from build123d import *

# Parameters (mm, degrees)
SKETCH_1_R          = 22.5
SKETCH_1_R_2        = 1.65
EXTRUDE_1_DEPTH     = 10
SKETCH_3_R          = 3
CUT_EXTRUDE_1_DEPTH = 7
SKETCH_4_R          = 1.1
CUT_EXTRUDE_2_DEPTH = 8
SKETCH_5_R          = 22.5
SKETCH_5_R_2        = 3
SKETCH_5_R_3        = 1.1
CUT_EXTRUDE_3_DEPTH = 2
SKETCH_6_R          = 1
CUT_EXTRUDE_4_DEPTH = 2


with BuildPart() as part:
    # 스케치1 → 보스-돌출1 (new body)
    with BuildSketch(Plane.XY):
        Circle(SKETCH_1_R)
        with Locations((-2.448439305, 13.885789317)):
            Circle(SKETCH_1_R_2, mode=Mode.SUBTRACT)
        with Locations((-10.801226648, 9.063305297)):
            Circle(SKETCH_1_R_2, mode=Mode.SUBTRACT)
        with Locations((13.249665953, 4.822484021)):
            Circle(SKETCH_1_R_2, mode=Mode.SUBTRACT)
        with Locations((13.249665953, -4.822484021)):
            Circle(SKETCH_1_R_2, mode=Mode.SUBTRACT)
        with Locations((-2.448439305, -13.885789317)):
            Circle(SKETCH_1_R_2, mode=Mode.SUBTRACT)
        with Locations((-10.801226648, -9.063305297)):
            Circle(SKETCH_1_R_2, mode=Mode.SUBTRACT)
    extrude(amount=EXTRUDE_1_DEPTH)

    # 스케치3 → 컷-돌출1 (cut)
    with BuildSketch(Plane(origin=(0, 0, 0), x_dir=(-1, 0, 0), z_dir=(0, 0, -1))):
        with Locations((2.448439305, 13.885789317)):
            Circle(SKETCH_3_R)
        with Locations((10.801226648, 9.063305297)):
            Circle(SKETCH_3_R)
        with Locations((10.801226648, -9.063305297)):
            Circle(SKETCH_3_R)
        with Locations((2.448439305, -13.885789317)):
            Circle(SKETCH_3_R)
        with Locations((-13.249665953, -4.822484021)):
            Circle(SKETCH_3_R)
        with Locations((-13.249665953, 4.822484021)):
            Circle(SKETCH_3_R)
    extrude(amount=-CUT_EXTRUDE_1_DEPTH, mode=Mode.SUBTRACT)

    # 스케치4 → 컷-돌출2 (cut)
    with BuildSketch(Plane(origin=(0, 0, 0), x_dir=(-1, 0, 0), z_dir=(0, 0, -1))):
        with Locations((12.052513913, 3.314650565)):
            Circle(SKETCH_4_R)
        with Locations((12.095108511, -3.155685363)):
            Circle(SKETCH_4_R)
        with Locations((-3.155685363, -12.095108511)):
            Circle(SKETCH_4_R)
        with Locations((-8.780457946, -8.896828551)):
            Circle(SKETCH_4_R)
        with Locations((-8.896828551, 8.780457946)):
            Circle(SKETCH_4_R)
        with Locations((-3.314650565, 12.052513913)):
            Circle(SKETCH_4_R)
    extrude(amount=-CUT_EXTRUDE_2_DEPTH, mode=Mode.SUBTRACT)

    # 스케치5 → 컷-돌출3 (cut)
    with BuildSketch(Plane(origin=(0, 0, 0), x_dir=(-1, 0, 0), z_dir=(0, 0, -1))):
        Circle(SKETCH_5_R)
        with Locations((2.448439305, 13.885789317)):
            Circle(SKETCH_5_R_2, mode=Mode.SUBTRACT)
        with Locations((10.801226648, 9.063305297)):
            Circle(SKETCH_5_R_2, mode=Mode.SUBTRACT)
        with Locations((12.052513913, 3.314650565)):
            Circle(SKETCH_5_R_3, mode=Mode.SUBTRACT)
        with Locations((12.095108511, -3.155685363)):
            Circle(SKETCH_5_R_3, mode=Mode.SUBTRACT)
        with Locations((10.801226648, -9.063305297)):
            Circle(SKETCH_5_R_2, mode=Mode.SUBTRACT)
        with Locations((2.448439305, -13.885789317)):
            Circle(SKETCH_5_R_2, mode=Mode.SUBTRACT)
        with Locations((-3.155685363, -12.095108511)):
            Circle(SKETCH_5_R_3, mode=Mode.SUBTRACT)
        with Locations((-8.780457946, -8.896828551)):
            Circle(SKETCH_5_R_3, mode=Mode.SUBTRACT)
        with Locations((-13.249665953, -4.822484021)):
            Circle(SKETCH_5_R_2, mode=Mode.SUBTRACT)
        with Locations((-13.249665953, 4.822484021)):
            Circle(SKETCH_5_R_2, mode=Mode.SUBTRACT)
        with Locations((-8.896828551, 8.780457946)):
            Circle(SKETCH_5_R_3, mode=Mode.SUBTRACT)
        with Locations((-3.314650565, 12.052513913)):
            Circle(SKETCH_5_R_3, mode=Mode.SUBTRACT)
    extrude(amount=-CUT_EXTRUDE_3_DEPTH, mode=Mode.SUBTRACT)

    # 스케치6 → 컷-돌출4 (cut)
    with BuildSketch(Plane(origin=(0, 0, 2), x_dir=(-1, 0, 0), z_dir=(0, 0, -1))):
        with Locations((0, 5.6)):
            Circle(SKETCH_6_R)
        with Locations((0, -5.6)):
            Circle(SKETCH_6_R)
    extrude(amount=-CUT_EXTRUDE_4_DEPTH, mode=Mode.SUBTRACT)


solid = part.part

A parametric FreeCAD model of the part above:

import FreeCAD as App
import Part
import Sketcher
from FreeCAD import Vector
Q = App.Units.Quantity

doc = App.newDocument("Part")
body = doc.addObject("PartDesign::Body", "Body")

sketch1 = body.newObject("Sketcher::SketchObject", "Sketch")
sketch1.AttachmentSupport = (doc.getObject("XY_Plane"), [""])
sketch1.MapMode = "FlatFace"
sketch1.addGeometry(Part.Circle(Vector(0, 0, 0), Vector(0, 0, 1), 22.5), False)
sketch1.addGeometry(Part.Circle(Vector(-10.8, -9.1, 0), Vector(0, 0, 1), 1.6), False)
sketch1.addGeometry(Part.Circle(Vector(-2.4, -13.9, 0), Vector(0, 0, 1), 1.6), False)
sketch1.addGeometry(Part.Circle(Vector(13.2, -4.8, 0), Vector(0, 0, 1), 1.6), False)
sketch1.addGeometry(Part.Circle(Vector(-10.8, 9.1, 0), Vector(0, 0, 1), 1.6), False)
sketch1.addGeometry(Part.Circle(Vector(-2.4, 13.9, 0), Vector(0, 0, 1), 1.6), False)
sketch1.addGeometry(Part.Circle(Vector(13.2, 4.8, 0), Vector(0, 0, 1), 1.6), False)
sketch1.addConstraint(Sketcher.Constraint("Coincident", 0, 3, -1, 1))
sketch1.addConstraint(Sketcher.Constraint("Equal", 1, 2))
sketch1.addConstraint(Sketcher.Constraint("Equal", 2, 3))
sketch1.addConstraint(Sketcher.Constraint("Equal", 3, 4))
sketch1.addConstraint(Sketcher.Constraint("Equal", 4, 5))
sketch1.addConstraint(Sketcher.Constraint("Equal", 5, 6))
sketch1.addConstraint(Sketcher.Constraint("Symmetric", 1, 3, 4, 3, -1))
sketch1.addConstraint(Sketcher.Constraint("Symmetric", 2, 3, 5, 3, -1))
sketch1.addConstraint(Sketcher.Constraint("Symmetric", 3, 3, 6, 3, -1))
sketch1.addConstraint(Sketcher.Constraint("Diameter", 0, Q("45 mm")))
sketch1.addConstraint(Sketcher.Constraint("Diameter", 1, Q("3.3 mm")))
sketch1.addConstraint(Sketcher.Constraint("DistanceX", 2, 3, -1, 1, Q("2.448439 mm")))
sketch1.addConstraint(Sketcher.Constraint("DistanceY", 2, 3, -1, 1, Q("13.885789 mm")))
sketch1.addConstraint(Sketcher.Constraint("DistanceY", 1, 3, 3, 3, Q("4.240821 mm")))
sketch1.addConstraint(Sketcher.Constraint("DistanceY", 1, 3, 4, 3, Q("18.126611 mm")))
sketch1.addConstraint(Sketcher.Constraint("DistanceX", 1, 3, -1, 1, Q("10.801227 mm")))
sketch1.addConstraint(Sketcher.Constraint("DistanceX", -1, 1, 3, 3, Q("13.249666 mm")))
pad1 = body.newObject("PartDesign::Pad", "Pad")
pad1.Profile = sketch1
pad1.Length = 10

sketch2 = body.newObject("Sketcher::SketchObject", "Sketch001")
sketch2.AttachmentSupport = (doc.getObject("XY_Plane"), [""])
sketch2.MapMode = "FlatFace"
sketch2.addGeometry(Part.Circle(Vector(-2.4, 13.9, 0), Vector(0, 0, 1), 3), False)
sketch2.addGeometry(Part.Circle(Vector(-10.8, 9.1, 0), Vector(0, 0, 1), 3), False)
sketch2.addGeometry(Part.Circle(Vector(-10.8, -9.1, 0), Vector(0, 0, 1), 3), False)
sketch2.addGeometry(Part.Circle(Vector(-2.4, -13.9, 0), Vector(0, 0, 1), 3), False)
sketch2.addGeometry(Part.Circle(Vector(13.2, -4.8, 0), Vector(0, 0, 1), 3), False)
sketch2.addGeometry(Part.Circle(Vector(13.2, 4.8, 0), Vector(0, 0, 1), 3), False)
sketch2.addConstraint(Sketcher.Constraint("Equal", 0, 1))
sketch2.addConstraint(Sketcher.Constraint("Equal", 1, 2))
sketch2.addConstraint(Sketcher.Constraint("Equal", 2, 3))
sketch2.addConstraint(Sketcher.Constraint("Equal", 3, 4))
sketch2.addConstraint(Sketcher.Constraint("Equal", 4, 5))
sketch2.addConstraint(Sketcher.Constraint("Symmetric", 1, 3, 2, 3, -1))
sketch2.addConstraint(Sketcher.Constraint("Symmetric", 0, 3, 3, 3, -1))
sketch2.addConstraint(Sketcher.Constraint("Symmetric", 4, 3, 5, 3, -1))
sketch2.addConstraint(Sketcher.Constraint("Diameter", 0, Q("6 mm")))
sketch2.addConstraint(Sketcher.Constraint("DistanceX", 0, 3, -1, 1, Q("2.448439 mm")))
sketch2.addConstraint(Sketcher.Constraint("DistanceY", -1, 1, 0, 3, Q("13.885789 mm")))
sketch2.addConstraint(Sketcher.Constraint("DistanceY", 2, 3, 1, 3, Q("18.126611 mm")))
sketch2.addConstraint(Sketcher.Constraint("DistanceY", 2, 3, 4, 3, Q("4.240821 mm")))
sketch2.addConstraint(Sketcher.Constraint("DistanceX", 1, 3, -1, 1, Q("10.801227 mm")))
sketch2.addConstraint(Sketcher.Constraint("DistanceX", -1, 1, 4, 3, Q("13.249666 mm")))
pocket1 = body.newObject("PartDesign::Pocket", "Pocket")
pocket1.Profile = sketch2
pocket1.Length = 7
pocket1.Reversed = True

sketch3 = body.newObject("Sketcher::SketchObject", "Sketch002")
sketch3.AttachmentSupport = (doc.getObject("XY_Plane"), [""])
sketch3.MapMode = "FlatFace"
sketch3.addGeometry(Part.Circle(Vector(-12.1, 3.3, 0), Vector(0, 0, 1), 1.1), False)
sketch3.addGeometry(Part.Circle(Vector(-12.1, -3.2, 0), Vector(0, 0, 1), 1.1), False)
sketch3.addGeometry(Part.Circle(Vector(3.2, -12.1, 0), Vector(0, 0, 1), 1.1), False)
sketch3.addGeometry(Part.Circle(Vector(8.8, -8.9, 0), Vector(0, 0, 1), 1.1), False)
sketch3.addGeometry(Part.Circle(Vector(8.9, 8.8, 0), Vector(0, 0, 1), 1.1), False)
sketch3.addGeometry(Part.Circle(Vector(3.3, 12.1, 0), Vector(0, 0, 1), 1.1), False)
sketch3.addConstraint(Sketcher.Constraint("Equal", 0, 1))
sketch3.addConstraint(Sketcher.Constraint("Equal", 1, 2))
sketch3.addConstraint(Sketcher.Constraint("Equal", 2, 3))
sketch3.addConstraint(Sketcher.Constraint("Equal", 3, 4))
sketch3.addConstraint(Sketcher.Constraint("Equal", 4, 5))
sketch3.addConstraint(Sketcher.Constraint("Diameter", 0, Q("2.2 mm")))
sketch3.addConstraint(Sketcher.Constraint("DistanceX", 0, 3, 2, 3, Q("15.208199 mm")))
sketch3.addConstraint(Sketcher.Constraint("DistanceY", 1, 3, 5, 3, Q("15.208199 mm")))
sketch3.addConstraint(Sketcher.Constraint("DistanceY", -1, 1, 0, 3, Q("3.314651 mm")))
sketch3.addConstraint(Sketcher.Constraint("DistanceX", 1, 3, -1, 1, Q("12.095109 mm")))
sketch3.addConstraint(Sketcher.Constraint("DistanceY", 2, 3, -1, 1, Q("12.095109 mm")))
sketch3.addConstraint(Sketcher.Constraint("DistanceY", 3, 3, -1, 1, Q("8.896829 mm")))
sketch3.addConstraint(Sketcher.Constraint("DistanceX", -1, 1, 4, 3, Q("8.896829 mm")))
sketch3.addConstraint(Sketcher.Constraint("DistanceX", -1, 1, 5, 3, Q("3.314651 mm")))
sketch3.addConstraint(Sketcher.Constraint("DistanceX", 0, 3, 3, 3, Q("20.832972 mm")))
sketch3.addConstraint(Sketcher.Constraint("DistanceX", 3, 3, 4, 3, Q("0.116371 mm")))
sketch3.addConstraint(Sketcher.Constraint("DistanceY", 1, 3, -1, 1, Q("3.155685 mm")))
sketch3.addConstraint(Sketcher.Constraint("DistanceY", -1, 1, 4, 3, Q("8.780458 mm")))
pocket2 = body.newObject("PartDesign::Pocket", "Pocket001")
pocket2.Profile = sketch3
pocket2.Length = 8
pocket2.Reversed = True

sketch4 = body.newObject("Sketcher::SketchObject", "Sketch003")
sketch4.AttachmentSupport = (doc.getObject("XY_Plane"), [""])
sketch4.MapMode = "FlatFace"
sketch4.addGeometry(Part.Circle(Vector(0, 0, 0), Vector(0, 0, 1), 22.5), False)
sketch4.addGeometry(Part.Circle(Vector(8.8, -8.9, 0), Vector(0, 0, 1), 1.1), False)
sketch4.addGeometry(Part.Circle(Vector(3.2, -12.1, 0), Vector(0, 0, 1), 1.1), False)
sketch4.addGeometry(Part.Circle(Vector(13.2, -4.8, 0), Vector(0, 0, 1), 3), False)
sketch4.addGeometry(Part.Circle(Vector(-2.4, -13.9, 0), Vector(0, 0, 1), 3), False)
sketch4.addGeometry(Part.Circle(Vector(-10.8, -9.1, 0), Vector(0, 0, 1), 3), False)
sketch4.addGeometry(Part.Circle(Vector(-12.1, -3.2, 0), Vector(0, 0, 1), 1.1), False)
sketch4.addGeometry(Part.Circle(Vector(13.2, 4.8, 0), Vector(0, 0, 1), 3), False)
sketch4.addGeometry(Part.Circle(Vector(8.9, 8.8, 0), Vector(0, 0, 1), 1.1), False)
sketch4.addGeometry(Part.Circle(Vector(3.3, 12.1, 0), Vector(0, 0, 1), 1.1), False)
sketch4.addGeometry(Part.Circle(Vector(-12.1, 3.3, 0), Vector(0, 0, 1), 1.1), False)
sketch4.addGeometry(Part.Circle(Vector(-2.4, 13.9, 0), Vector(0, 0, 1), 3), False)
sketch4.addGeometry(Part.Circle(Vector(-10.8, 9.1, 0), Vector(0, 0, 1), 3), False)
sketch4.addConstraint(Sketcher.Constraint("Coincident", 0, 3, -1, 1))
sketch4.addConstraint(Sketcher.Constraint("Equal", 1, 2))
sketch4.addConstraint(Sketcher.Constraint("Equal", 3, 4))
sketch4.addConstraint(Sketcher.Constraint("Equal", 4, 5))
sketch4.addConstraint(Sketcher.Constraint("Equal", 2, 6))
sketch4.addConstraint(Sketcher.Constraint("Equal", 5, 7))
sketch4.addConstraint(Sketcher.Constraint("Equal", 6, 8))
sketch4.addConstraint(Sketcher.Constraint("Equal", 8, 9))
sketch4.addConstraint(Sketcher.Constraint("Equal", 9, 10))
sketch4.addConstraint(Sketcher.Constraint("Equal", 7, 11))
sketch4.addConstraint(Sketcher.Constraint("Equal", 11, 12))
sketch4.addConstraint(Sketcher.Constraint("Symmetric", 3, 3, 7, 3, -1))
sketch4.addConstraint(Sketcher.Constraint("Symmetric", 4, 3, 11, 3, -1))
sketch4.addConstraint(Sketcher.Constraint("Symmetric", 5, 3, 12, 3, -1))
sketch4.addConstraint(Sketcher.Constraint("Diameter", 0, Q("45 mm")))
sketch4.addConstraint(Sketcher.Constraint("Diameter", 3, Q("6 mm")))
sketch4.addConstraint(Sketcher.Constraint("Diameter", 1, Q("2.2 mm")))
sketch4.addConstraint(Sketcher.Constraint("DistanceY", 6, 3, 9, 3, Q("15.208199 mm")))
sketch4.addConstraint(Sketcher.Constraint("DistanceY", 1, 3, -1, 1, Q("8.896829 mm")))
sketch4.addConstraint(Sketcher.Constraint("DistanceY", 2, 3, -1, 1, Q("12.095109 mm")))
sketch4.addConstraint(Sketcher.Constraint("DistanceX", 4, 3, -1, 1, Q("2.448439 mm")))
sketch4.addConstraint(Sketcher.Constraint("DistanceY", 4, 3, -1, 1, Q("13.885789 mm")))
sketch4.addConstraint(Sketcher.Constraint("DistanceX", 6, 3, -1, 1, Q("12.095109 mm")))
sketch4.addConstraint(Sketcher.Constraint("DistanceX", -1, 1, 8, 3, Q("8.896829 mm")))
sketch4.addConstraint(Sketcher.Constraint("DistanceX", -1, 1, 9, 3, Q("3.314651 mm")))
sketch4.addConstraint(Sketcher.Constraint("DistanceY", -1, 1, 10, 3, Q("3.314651 mm")))
sketch4.addConstraint(Sketcher.Constraint("DistanceX", 1, 3, 3, 3, Q("4.469208 mm")))
sketch4.addConstraint(Sketcher.Constraint("DistanceX", 2, 3, 3, 3, Q("10.093981 mm")))
sketch4.addConstraint(Sketcher.Constraint("DistanceY", 5, 3, 3, 3, Q("4.240821 mm")))
sketch4.addConstraint(Sketcher.Constraint("DistanceX", 6, 3, 5, 3, Q("1.293882 mm")))
sketch4.addConstraint(Sketcher.Constraint("DistanceY", 5, 3, 6, 3, Q("5.90762 mm")))
sketch4.addConstraint(Sketcher.Constraint("DistanceY", 3, 3, 7, 3, Q("9.644968 mm")))
sketch4.addConstraint(Sketcher.Constraint("DistanceY", 3, 3, 8, 3, Q("13.602942 mm")))
sketch4.addConstraint(Sketcher.Constraint("DistanceX", 1, 3, 8, 3, Q("0.116371 mm")))
sketch4.addConstraint(Sketcher.Constraint("DistanceX", 10, 3, -1, 1, Q("12.052514 mm")))
pocket3 = body.newObject("PartDesign::Pocket", "Pocket002")
pocket3.Profile = sketch4
pocket3.Length = 2
pocket3.Reversed = True

sketch5 = body.newObject("Sketcher::SketchObject", "Sketch004")
sketch5.AttachmentSupport = (doc.getObject("XY_Plane"), [""])
sketch5.MapMode = "FlatFace"
sketch5.AttachmentOffset = App.Placement(Vector(0, 0, 2), App.Rotation())
sketch5.addGeometry(Part.Circle(Vector(0, 5.6, 0), Vector(0, 0, 1), 1), False)
sketch5.addGeometry(Part.Circle(Vector(0, -5.6, 0), Vector(0, 0, 1), 1), False)
sketch5.addConstraint(Sketcher.Constraint("Equal", 0, 1))
sketch5.addConstraint(Sketcher.Constraint("Symmetric", 0, 3, 1, 3, -1, 1))
sketch5.addConstraint(Sketcher.Constraint("PointOnObject", 0, 3, -2))
sketch5.addConstraint(Sketcher.Constraint("Diameter", 0, Q("2 mm")))
sketch5.addConstraint(Sketcher.Constraint("DistanceY", -1, 1, 0, 3, Q("5.6 mm")))
pocket4 = body.newObject("PartDesign::Pocket", "Pocket003")
pocket4.Profile = sketch5
pocket4.Length = 2
pocket4.Reversed = True

doc.recompute()
